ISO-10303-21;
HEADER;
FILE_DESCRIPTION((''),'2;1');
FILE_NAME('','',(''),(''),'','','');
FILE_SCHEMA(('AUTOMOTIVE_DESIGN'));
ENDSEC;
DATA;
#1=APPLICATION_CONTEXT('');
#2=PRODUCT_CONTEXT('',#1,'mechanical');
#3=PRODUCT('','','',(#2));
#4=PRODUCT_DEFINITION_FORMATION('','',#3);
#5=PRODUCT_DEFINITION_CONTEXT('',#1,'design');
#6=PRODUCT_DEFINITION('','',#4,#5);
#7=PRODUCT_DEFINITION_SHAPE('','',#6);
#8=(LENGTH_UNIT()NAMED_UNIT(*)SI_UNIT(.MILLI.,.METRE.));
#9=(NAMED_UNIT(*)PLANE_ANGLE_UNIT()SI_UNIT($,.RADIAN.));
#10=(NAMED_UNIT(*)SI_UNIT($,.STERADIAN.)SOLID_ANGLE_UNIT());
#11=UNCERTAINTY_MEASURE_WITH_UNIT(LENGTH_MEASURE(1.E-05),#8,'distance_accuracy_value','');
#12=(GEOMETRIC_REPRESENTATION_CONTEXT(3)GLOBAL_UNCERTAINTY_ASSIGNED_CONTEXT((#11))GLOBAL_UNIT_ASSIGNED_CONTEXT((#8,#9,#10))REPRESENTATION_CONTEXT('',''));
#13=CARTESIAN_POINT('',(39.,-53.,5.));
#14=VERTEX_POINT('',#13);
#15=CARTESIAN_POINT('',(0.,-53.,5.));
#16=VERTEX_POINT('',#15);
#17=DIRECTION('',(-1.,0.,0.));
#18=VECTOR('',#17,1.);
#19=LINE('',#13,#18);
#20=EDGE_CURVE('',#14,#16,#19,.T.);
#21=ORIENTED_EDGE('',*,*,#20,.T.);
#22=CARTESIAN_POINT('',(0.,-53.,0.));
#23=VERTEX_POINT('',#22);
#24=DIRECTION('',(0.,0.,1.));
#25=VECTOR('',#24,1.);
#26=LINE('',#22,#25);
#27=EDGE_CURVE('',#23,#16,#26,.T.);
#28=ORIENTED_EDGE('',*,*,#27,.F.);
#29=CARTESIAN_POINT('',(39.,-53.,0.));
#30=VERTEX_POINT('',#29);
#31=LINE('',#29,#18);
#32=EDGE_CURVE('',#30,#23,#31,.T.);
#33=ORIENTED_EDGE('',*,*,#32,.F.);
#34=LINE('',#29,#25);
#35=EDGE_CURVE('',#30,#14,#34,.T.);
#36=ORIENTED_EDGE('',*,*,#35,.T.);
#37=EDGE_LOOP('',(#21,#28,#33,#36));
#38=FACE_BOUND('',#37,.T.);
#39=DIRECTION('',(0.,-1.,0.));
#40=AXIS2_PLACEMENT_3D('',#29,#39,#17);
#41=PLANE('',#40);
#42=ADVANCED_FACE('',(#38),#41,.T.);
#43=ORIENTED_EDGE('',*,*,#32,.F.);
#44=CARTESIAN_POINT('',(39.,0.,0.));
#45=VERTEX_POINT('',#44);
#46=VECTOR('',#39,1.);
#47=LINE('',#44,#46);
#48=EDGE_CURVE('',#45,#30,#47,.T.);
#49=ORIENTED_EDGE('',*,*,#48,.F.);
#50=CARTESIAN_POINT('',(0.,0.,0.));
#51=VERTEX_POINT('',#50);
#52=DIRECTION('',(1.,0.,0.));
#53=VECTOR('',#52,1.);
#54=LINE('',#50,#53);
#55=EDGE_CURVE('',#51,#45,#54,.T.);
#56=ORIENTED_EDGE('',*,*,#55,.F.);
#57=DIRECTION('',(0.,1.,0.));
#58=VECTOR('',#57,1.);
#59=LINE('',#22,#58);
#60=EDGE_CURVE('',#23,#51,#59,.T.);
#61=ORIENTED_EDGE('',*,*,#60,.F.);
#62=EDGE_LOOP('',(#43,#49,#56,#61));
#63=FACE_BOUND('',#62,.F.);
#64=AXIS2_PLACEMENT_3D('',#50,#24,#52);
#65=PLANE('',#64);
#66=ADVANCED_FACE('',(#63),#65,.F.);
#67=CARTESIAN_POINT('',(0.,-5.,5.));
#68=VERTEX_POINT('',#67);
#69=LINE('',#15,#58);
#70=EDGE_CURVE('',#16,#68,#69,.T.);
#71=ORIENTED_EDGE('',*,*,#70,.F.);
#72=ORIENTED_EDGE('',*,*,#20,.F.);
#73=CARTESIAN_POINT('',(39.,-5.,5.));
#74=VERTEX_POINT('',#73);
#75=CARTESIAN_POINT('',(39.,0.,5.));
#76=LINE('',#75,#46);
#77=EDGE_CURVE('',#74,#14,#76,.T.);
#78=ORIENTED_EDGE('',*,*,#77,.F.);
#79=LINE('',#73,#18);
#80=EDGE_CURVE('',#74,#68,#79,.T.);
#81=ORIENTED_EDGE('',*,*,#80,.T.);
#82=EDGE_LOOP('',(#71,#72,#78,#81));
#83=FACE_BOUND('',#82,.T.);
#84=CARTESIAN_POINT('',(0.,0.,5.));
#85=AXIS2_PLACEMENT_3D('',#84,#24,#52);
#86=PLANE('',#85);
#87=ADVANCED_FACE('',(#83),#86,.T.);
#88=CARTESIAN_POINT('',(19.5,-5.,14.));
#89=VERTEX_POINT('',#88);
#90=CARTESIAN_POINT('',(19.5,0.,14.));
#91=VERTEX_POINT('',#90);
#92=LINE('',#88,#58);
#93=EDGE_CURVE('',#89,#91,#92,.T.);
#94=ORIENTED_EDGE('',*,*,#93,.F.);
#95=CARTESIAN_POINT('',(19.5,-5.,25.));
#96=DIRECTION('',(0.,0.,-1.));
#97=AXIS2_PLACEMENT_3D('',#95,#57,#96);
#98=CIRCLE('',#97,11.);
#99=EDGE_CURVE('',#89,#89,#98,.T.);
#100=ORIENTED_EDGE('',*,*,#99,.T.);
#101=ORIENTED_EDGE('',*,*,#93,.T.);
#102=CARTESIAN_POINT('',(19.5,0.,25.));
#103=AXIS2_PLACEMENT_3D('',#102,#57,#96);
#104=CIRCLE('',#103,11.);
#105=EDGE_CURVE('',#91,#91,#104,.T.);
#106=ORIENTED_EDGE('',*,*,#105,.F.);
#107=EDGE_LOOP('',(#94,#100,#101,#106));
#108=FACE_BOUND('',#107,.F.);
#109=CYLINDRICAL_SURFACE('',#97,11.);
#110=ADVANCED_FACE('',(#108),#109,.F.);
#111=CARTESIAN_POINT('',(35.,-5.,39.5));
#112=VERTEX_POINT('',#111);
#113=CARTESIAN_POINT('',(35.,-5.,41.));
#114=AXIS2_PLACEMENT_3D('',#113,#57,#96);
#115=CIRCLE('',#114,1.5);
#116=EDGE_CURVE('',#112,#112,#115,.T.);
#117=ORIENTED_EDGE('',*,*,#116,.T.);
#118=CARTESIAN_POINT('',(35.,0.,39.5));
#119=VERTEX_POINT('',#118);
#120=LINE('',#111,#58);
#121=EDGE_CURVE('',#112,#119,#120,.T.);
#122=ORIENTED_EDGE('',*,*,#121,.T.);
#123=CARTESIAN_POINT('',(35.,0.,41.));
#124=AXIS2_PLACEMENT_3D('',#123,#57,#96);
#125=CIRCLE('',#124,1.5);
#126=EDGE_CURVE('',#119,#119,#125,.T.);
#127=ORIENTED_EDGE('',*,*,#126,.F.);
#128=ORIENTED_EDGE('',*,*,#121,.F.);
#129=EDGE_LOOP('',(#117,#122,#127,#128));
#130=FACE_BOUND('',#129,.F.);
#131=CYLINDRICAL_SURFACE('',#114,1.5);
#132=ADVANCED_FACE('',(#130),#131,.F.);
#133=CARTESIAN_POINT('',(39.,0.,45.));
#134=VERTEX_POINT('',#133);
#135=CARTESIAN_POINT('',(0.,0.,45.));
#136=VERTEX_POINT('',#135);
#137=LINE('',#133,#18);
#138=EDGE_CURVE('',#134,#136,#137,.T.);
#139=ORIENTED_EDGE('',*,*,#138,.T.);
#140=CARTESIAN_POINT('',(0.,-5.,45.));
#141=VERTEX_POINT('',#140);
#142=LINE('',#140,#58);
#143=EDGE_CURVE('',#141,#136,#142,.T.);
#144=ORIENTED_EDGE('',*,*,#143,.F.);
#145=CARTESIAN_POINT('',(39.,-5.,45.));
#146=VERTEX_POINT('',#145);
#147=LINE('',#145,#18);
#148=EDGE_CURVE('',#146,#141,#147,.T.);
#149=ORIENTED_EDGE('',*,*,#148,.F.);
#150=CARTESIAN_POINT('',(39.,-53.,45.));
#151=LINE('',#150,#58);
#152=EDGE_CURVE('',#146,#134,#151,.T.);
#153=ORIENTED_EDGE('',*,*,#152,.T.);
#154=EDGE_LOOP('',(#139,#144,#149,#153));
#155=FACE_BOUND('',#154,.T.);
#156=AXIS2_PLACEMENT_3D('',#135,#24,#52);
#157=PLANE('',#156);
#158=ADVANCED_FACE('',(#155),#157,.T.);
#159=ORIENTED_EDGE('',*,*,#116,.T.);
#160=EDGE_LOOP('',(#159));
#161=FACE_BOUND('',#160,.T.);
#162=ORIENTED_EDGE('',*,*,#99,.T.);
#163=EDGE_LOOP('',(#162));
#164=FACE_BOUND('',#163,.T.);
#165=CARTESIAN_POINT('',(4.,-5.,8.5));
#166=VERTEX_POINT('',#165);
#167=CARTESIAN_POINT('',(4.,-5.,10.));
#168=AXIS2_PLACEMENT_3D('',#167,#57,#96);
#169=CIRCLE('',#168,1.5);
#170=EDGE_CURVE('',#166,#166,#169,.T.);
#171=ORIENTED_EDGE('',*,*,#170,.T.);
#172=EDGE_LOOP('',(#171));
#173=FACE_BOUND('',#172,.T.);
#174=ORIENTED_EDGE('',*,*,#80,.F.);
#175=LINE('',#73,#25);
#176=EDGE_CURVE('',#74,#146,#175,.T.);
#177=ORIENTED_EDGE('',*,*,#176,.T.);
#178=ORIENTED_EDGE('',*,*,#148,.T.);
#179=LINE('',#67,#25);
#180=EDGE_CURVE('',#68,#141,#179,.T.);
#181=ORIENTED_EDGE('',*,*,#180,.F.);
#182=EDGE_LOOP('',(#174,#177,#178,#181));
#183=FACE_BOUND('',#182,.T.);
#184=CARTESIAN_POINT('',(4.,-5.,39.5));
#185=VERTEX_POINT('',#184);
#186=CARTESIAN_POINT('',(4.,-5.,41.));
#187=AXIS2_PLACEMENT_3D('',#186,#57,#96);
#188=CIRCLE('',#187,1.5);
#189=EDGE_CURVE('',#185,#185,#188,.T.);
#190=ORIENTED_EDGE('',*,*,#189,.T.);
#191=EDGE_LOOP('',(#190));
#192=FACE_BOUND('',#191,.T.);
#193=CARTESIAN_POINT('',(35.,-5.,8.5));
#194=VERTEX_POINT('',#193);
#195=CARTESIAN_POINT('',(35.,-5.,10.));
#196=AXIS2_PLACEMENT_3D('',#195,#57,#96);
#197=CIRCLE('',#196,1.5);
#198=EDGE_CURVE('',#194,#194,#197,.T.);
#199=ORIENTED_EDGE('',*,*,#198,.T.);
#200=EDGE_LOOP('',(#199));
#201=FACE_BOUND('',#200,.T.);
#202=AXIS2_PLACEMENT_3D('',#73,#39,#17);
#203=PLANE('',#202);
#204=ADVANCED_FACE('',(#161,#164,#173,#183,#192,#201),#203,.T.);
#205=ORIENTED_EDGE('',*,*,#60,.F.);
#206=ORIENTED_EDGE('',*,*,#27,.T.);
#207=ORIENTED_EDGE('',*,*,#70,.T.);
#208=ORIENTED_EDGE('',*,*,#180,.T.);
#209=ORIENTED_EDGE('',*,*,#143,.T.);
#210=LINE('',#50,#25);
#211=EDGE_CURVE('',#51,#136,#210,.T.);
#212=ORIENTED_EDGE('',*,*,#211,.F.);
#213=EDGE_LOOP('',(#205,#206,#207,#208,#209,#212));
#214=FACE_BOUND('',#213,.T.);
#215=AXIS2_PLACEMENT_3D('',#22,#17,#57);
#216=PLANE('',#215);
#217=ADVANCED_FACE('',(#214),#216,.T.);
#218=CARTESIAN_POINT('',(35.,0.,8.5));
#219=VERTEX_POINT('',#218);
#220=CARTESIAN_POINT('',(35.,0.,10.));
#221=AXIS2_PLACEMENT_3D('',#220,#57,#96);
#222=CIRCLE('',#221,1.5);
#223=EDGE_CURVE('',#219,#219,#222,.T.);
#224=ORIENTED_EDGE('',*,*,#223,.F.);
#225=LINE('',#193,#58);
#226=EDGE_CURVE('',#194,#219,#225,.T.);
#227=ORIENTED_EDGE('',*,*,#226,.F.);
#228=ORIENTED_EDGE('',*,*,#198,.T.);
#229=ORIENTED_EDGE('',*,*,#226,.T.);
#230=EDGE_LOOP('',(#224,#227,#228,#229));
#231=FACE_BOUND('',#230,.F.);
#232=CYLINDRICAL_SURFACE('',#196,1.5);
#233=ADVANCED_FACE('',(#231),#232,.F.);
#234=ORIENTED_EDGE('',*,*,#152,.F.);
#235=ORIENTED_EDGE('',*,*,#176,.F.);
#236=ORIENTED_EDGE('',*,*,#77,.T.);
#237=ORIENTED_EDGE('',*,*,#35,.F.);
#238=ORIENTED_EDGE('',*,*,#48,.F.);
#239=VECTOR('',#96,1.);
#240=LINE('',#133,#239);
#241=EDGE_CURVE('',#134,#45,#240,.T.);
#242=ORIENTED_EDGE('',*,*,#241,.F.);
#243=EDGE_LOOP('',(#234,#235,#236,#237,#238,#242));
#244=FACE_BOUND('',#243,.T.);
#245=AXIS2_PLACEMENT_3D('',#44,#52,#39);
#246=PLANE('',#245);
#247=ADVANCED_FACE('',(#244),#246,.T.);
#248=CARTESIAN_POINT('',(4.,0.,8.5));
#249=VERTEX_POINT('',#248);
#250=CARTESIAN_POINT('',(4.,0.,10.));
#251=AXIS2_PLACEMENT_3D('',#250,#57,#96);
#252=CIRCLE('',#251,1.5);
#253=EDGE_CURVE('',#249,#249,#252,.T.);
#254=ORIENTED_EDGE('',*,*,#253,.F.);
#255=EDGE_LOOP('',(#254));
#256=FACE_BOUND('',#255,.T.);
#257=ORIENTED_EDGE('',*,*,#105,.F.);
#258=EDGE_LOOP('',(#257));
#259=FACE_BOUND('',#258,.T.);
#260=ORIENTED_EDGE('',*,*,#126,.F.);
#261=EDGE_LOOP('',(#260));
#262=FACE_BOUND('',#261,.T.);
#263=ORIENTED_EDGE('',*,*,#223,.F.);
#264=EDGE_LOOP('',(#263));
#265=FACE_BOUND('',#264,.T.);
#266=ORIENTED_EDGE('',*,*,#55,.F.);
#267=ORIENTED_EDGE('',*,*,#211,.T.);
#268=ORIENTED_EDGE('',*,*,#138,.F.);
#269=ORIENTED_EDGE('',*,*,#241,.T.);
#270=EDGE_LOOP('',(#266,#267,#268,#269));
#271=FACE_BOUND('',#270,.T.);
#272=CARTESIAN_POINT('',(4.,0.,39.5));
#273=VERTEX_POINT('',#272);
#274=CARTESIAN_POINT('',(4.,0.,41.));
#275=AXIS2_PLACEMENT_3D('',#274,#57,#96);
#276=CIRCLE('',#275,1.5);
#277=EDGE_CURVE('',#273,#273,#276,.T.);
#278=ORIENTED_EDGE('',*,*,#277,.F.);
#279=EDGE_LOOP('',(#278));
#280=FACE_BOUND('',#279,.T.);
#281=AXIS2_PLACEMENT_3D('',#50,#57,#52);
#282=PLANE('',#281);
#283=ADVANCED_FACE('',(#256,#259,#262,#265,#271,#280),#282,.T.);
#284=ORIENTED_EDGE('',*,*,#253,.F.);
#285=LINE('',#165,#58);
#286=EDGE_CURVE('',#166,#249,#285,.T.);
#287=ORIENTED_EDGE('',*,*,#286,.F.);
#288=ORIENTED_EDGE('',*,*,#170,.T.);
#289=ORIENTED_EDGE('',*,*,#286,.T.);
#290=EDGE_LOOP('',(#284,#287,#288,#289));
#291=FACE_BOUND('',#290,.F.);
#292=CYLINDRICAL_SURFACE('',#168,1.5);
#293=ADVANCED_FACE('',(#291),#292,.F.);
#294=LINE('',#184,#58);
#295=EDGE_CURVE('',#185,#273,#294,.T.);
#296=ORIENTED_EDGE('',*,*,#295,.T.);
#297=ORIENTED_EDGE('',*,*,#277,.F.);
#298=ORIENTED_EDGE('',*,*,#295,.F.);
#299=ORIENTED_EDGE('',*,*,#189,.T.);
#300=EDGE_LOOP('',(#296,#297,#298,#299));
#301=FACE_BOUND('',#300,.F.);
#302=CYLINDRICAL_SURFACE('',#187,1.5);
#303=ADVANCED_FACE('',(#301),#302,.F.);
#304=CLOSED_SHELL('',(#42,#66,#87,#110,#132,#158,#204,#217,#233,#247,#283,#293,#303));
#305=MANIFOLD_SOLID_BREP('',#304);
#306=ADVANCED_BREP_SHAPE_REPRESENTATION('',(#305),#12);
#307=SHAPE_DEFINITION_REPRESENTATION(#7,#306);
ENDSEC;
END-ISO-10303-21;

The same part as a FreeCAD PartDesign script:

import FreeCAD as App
import Part
import Sketcher
from FreeCAD import Vector
Q = App.Units.Quantity


def add_polygon(sketch, points):
    """Adds a closed chain of lines whose ends are joined by coincident constraints."""
    first, n = sketch.GeometryCount, len(points)
    for a, b in zip(points, points[1:] + points[:1]):
        sketch.addGeometry(Part.LineSegment(App.Vector(*a, 0), App.Vector(*b, 0)), False)
    for i in range(n):
        sketch.addConstraint(Sketcher.Constraint("Coincident", first + i, 2, first + (i + 1) % n, 1))

doc = App.newDocument("Part")
body = doc.addObject("PartDesign::Body", "Body")

sketch1 = body.newObject("Sketcher::SketchObject", "Sketch")
sketch1.AttachmentSupport = (doc.getObject("XY_Plane"), [""])
sketch1.MapMode = "FlatFace"
add_polygon(sketch1, [(39, 0), (0, 0), (0, -53), (39, -53)])
sketch1.addConstraint([
    Sketcher.Constraint("Horizontal", 0),
    Sketcher.Constraint("Vertical", 1),
    Sketcher.Constraint("Horizontal", 2),
    Sketcher.Constraint("Vertical", 3),
    Sketcher.Constraint("Coincident", 0, 2, -1, 1),
    Sketcher.Constraint("DistanceX", 0, 2, 0, 1, Q("39 mm")),
    Sketcher.Constraint("DistanceY", 1, 2, 1, 1, Q("53 mm")),
])
pad1 = body.newObject("PartDesign::Pad", "Pad")
pad1.Profile = sketch1
pad1.Length = 5

sketch2 = body.newObject("Sketcher::SketchObject", "Sketch001")
sketch2.AttachmentSupport = (doc.getObject("XY_Plane"), [""])
sketch2.MapMode = "FlatFace"
sketch2.AttachmentOffset = App.Placement(Vector(0, 0, 5), App.Rotation())
add_polygon(sketch2, [(39, -5), (39, 0), (0, 0), (0, -5)])
sketch2.addConstraint([
    Sketcher.Constraint("Vertical", 0),
    Sketcher.Constraint("Horizontal", 1),
    Sketcher.Constraint("Vertical", 2),
    Sketcher.Constraint("Horizontal", 3),
    Sketcher.Constraint("Coincident", 1, 2, -1, 1),
    Sketcher.Constraint("DistanceY", 0, 1, 0, 2, Q("5 mm")),
    Sketcher.Constraint("DistanceX", 1, 2, 1, 1, Q("39 mm")),
])
pad2 = body.newObject("PartDesign::Pad", "Pad001")
pad2.Profile = sketch2
pad2.Length = 40

sketch3 = body.newObject("Sketcher::SketchObject", "Sketch002")
sketch3.AttachmentSupport = (doc.getObject("XZ_Plane"), [""])
sketch3.MapMode = "FlatFace"
sketch3.AttachmentOffset = App.Placement(Vector(0, 0, 5), App.Rotation())
sketch3.addGeometry(Part.Circle(Vector(20, 25, 0), Vector(0, 0, 1), 11), False)
sketch3.addConstraint([
    Sketcher.Constraint("Diameter", 0, Q("22 mm")),
    Sketcher.Constraint("DistanceY", -1, 1, 0, 3, Q("25 mm")),
    Sketcher.Constraint("DistanceX", -1, 1, 0, 3, Q("19.5 mm")),
])
doc.recompute()
hole = body.newObject("PartDesign::Hole", "Hole")
hole.Profile = sketch3
hole.ThreadType = "None"
hole.Diameter = 22
hole.DepthType = "ThroughAll"

sketch4 = body.newObject("Sketcher::SketchObject", "Sketch003")
sketch4.AttachmentSupport = (doc.getObject("XZ_Plane"), [""])
sketch4.MapMode = "FlatFace"
sketch4.AttachmentOffset = App.Placement(Vector(0, 0, 5), App.Rotation())
sketch4.addGeometry([
    Part.Circle(Vector(4, 10, 0), Vector(0, 0, 1), 1.5),
    Part.Circle(Vector(4, 41, 0), Vector(0, 0, 1), 1.5),
    Part.Circle(Vector(35, 41, 0), Vector(0, 0, 1), 1.5),
    Part.Circle(Vector(35, 10, 0), Vector(0, 0, 1), 1.5),
], False)
sketch4.addConstraint([
    Sketcher.Constraint("Equal", 0, 1),
    Sketcher.Constraint("Equal", 1, 2),
    Sketcher.Constraint("Equal", 2, 3),
    Sketcher.Constraint("Horizontal", 1, 3, 2, 3),
    Sketcher.Constraint("Horizontal", 0, 3, 3, 3),
    Sketcher.Constraint("Vertical", 0, 3, 1, 3),
    Sketcher.Constraint("Vertical", 2, 3, 3, 3),
    Sketcher.Constraint("Diameter", 0, Q("3 mm")),
    Sketcher.Constraint("DistanceX", -1, 1, 0, 3, Q("4 mm")),
    Sketcher.Constraint("DistanceY", -1, 1, 0, 3, Q("10 mm")),
    Sketcher.Constraint("DistanceY", -1, 1, 1, 3, Q("41 mm")),
    Sketcher.Constraint("DistanceX", -1, 1, 2, 3, Q("35 mm")),
])
doc.recompute()
hole2 = body.newObject("PartDesign::Hole", "Hole001")
hole2.Profile = sketch4
hole2.ThreadType = "None"
hole2.Diameter = 3
hole2.DepthType = "ThroughAll"

doc.recompute()
